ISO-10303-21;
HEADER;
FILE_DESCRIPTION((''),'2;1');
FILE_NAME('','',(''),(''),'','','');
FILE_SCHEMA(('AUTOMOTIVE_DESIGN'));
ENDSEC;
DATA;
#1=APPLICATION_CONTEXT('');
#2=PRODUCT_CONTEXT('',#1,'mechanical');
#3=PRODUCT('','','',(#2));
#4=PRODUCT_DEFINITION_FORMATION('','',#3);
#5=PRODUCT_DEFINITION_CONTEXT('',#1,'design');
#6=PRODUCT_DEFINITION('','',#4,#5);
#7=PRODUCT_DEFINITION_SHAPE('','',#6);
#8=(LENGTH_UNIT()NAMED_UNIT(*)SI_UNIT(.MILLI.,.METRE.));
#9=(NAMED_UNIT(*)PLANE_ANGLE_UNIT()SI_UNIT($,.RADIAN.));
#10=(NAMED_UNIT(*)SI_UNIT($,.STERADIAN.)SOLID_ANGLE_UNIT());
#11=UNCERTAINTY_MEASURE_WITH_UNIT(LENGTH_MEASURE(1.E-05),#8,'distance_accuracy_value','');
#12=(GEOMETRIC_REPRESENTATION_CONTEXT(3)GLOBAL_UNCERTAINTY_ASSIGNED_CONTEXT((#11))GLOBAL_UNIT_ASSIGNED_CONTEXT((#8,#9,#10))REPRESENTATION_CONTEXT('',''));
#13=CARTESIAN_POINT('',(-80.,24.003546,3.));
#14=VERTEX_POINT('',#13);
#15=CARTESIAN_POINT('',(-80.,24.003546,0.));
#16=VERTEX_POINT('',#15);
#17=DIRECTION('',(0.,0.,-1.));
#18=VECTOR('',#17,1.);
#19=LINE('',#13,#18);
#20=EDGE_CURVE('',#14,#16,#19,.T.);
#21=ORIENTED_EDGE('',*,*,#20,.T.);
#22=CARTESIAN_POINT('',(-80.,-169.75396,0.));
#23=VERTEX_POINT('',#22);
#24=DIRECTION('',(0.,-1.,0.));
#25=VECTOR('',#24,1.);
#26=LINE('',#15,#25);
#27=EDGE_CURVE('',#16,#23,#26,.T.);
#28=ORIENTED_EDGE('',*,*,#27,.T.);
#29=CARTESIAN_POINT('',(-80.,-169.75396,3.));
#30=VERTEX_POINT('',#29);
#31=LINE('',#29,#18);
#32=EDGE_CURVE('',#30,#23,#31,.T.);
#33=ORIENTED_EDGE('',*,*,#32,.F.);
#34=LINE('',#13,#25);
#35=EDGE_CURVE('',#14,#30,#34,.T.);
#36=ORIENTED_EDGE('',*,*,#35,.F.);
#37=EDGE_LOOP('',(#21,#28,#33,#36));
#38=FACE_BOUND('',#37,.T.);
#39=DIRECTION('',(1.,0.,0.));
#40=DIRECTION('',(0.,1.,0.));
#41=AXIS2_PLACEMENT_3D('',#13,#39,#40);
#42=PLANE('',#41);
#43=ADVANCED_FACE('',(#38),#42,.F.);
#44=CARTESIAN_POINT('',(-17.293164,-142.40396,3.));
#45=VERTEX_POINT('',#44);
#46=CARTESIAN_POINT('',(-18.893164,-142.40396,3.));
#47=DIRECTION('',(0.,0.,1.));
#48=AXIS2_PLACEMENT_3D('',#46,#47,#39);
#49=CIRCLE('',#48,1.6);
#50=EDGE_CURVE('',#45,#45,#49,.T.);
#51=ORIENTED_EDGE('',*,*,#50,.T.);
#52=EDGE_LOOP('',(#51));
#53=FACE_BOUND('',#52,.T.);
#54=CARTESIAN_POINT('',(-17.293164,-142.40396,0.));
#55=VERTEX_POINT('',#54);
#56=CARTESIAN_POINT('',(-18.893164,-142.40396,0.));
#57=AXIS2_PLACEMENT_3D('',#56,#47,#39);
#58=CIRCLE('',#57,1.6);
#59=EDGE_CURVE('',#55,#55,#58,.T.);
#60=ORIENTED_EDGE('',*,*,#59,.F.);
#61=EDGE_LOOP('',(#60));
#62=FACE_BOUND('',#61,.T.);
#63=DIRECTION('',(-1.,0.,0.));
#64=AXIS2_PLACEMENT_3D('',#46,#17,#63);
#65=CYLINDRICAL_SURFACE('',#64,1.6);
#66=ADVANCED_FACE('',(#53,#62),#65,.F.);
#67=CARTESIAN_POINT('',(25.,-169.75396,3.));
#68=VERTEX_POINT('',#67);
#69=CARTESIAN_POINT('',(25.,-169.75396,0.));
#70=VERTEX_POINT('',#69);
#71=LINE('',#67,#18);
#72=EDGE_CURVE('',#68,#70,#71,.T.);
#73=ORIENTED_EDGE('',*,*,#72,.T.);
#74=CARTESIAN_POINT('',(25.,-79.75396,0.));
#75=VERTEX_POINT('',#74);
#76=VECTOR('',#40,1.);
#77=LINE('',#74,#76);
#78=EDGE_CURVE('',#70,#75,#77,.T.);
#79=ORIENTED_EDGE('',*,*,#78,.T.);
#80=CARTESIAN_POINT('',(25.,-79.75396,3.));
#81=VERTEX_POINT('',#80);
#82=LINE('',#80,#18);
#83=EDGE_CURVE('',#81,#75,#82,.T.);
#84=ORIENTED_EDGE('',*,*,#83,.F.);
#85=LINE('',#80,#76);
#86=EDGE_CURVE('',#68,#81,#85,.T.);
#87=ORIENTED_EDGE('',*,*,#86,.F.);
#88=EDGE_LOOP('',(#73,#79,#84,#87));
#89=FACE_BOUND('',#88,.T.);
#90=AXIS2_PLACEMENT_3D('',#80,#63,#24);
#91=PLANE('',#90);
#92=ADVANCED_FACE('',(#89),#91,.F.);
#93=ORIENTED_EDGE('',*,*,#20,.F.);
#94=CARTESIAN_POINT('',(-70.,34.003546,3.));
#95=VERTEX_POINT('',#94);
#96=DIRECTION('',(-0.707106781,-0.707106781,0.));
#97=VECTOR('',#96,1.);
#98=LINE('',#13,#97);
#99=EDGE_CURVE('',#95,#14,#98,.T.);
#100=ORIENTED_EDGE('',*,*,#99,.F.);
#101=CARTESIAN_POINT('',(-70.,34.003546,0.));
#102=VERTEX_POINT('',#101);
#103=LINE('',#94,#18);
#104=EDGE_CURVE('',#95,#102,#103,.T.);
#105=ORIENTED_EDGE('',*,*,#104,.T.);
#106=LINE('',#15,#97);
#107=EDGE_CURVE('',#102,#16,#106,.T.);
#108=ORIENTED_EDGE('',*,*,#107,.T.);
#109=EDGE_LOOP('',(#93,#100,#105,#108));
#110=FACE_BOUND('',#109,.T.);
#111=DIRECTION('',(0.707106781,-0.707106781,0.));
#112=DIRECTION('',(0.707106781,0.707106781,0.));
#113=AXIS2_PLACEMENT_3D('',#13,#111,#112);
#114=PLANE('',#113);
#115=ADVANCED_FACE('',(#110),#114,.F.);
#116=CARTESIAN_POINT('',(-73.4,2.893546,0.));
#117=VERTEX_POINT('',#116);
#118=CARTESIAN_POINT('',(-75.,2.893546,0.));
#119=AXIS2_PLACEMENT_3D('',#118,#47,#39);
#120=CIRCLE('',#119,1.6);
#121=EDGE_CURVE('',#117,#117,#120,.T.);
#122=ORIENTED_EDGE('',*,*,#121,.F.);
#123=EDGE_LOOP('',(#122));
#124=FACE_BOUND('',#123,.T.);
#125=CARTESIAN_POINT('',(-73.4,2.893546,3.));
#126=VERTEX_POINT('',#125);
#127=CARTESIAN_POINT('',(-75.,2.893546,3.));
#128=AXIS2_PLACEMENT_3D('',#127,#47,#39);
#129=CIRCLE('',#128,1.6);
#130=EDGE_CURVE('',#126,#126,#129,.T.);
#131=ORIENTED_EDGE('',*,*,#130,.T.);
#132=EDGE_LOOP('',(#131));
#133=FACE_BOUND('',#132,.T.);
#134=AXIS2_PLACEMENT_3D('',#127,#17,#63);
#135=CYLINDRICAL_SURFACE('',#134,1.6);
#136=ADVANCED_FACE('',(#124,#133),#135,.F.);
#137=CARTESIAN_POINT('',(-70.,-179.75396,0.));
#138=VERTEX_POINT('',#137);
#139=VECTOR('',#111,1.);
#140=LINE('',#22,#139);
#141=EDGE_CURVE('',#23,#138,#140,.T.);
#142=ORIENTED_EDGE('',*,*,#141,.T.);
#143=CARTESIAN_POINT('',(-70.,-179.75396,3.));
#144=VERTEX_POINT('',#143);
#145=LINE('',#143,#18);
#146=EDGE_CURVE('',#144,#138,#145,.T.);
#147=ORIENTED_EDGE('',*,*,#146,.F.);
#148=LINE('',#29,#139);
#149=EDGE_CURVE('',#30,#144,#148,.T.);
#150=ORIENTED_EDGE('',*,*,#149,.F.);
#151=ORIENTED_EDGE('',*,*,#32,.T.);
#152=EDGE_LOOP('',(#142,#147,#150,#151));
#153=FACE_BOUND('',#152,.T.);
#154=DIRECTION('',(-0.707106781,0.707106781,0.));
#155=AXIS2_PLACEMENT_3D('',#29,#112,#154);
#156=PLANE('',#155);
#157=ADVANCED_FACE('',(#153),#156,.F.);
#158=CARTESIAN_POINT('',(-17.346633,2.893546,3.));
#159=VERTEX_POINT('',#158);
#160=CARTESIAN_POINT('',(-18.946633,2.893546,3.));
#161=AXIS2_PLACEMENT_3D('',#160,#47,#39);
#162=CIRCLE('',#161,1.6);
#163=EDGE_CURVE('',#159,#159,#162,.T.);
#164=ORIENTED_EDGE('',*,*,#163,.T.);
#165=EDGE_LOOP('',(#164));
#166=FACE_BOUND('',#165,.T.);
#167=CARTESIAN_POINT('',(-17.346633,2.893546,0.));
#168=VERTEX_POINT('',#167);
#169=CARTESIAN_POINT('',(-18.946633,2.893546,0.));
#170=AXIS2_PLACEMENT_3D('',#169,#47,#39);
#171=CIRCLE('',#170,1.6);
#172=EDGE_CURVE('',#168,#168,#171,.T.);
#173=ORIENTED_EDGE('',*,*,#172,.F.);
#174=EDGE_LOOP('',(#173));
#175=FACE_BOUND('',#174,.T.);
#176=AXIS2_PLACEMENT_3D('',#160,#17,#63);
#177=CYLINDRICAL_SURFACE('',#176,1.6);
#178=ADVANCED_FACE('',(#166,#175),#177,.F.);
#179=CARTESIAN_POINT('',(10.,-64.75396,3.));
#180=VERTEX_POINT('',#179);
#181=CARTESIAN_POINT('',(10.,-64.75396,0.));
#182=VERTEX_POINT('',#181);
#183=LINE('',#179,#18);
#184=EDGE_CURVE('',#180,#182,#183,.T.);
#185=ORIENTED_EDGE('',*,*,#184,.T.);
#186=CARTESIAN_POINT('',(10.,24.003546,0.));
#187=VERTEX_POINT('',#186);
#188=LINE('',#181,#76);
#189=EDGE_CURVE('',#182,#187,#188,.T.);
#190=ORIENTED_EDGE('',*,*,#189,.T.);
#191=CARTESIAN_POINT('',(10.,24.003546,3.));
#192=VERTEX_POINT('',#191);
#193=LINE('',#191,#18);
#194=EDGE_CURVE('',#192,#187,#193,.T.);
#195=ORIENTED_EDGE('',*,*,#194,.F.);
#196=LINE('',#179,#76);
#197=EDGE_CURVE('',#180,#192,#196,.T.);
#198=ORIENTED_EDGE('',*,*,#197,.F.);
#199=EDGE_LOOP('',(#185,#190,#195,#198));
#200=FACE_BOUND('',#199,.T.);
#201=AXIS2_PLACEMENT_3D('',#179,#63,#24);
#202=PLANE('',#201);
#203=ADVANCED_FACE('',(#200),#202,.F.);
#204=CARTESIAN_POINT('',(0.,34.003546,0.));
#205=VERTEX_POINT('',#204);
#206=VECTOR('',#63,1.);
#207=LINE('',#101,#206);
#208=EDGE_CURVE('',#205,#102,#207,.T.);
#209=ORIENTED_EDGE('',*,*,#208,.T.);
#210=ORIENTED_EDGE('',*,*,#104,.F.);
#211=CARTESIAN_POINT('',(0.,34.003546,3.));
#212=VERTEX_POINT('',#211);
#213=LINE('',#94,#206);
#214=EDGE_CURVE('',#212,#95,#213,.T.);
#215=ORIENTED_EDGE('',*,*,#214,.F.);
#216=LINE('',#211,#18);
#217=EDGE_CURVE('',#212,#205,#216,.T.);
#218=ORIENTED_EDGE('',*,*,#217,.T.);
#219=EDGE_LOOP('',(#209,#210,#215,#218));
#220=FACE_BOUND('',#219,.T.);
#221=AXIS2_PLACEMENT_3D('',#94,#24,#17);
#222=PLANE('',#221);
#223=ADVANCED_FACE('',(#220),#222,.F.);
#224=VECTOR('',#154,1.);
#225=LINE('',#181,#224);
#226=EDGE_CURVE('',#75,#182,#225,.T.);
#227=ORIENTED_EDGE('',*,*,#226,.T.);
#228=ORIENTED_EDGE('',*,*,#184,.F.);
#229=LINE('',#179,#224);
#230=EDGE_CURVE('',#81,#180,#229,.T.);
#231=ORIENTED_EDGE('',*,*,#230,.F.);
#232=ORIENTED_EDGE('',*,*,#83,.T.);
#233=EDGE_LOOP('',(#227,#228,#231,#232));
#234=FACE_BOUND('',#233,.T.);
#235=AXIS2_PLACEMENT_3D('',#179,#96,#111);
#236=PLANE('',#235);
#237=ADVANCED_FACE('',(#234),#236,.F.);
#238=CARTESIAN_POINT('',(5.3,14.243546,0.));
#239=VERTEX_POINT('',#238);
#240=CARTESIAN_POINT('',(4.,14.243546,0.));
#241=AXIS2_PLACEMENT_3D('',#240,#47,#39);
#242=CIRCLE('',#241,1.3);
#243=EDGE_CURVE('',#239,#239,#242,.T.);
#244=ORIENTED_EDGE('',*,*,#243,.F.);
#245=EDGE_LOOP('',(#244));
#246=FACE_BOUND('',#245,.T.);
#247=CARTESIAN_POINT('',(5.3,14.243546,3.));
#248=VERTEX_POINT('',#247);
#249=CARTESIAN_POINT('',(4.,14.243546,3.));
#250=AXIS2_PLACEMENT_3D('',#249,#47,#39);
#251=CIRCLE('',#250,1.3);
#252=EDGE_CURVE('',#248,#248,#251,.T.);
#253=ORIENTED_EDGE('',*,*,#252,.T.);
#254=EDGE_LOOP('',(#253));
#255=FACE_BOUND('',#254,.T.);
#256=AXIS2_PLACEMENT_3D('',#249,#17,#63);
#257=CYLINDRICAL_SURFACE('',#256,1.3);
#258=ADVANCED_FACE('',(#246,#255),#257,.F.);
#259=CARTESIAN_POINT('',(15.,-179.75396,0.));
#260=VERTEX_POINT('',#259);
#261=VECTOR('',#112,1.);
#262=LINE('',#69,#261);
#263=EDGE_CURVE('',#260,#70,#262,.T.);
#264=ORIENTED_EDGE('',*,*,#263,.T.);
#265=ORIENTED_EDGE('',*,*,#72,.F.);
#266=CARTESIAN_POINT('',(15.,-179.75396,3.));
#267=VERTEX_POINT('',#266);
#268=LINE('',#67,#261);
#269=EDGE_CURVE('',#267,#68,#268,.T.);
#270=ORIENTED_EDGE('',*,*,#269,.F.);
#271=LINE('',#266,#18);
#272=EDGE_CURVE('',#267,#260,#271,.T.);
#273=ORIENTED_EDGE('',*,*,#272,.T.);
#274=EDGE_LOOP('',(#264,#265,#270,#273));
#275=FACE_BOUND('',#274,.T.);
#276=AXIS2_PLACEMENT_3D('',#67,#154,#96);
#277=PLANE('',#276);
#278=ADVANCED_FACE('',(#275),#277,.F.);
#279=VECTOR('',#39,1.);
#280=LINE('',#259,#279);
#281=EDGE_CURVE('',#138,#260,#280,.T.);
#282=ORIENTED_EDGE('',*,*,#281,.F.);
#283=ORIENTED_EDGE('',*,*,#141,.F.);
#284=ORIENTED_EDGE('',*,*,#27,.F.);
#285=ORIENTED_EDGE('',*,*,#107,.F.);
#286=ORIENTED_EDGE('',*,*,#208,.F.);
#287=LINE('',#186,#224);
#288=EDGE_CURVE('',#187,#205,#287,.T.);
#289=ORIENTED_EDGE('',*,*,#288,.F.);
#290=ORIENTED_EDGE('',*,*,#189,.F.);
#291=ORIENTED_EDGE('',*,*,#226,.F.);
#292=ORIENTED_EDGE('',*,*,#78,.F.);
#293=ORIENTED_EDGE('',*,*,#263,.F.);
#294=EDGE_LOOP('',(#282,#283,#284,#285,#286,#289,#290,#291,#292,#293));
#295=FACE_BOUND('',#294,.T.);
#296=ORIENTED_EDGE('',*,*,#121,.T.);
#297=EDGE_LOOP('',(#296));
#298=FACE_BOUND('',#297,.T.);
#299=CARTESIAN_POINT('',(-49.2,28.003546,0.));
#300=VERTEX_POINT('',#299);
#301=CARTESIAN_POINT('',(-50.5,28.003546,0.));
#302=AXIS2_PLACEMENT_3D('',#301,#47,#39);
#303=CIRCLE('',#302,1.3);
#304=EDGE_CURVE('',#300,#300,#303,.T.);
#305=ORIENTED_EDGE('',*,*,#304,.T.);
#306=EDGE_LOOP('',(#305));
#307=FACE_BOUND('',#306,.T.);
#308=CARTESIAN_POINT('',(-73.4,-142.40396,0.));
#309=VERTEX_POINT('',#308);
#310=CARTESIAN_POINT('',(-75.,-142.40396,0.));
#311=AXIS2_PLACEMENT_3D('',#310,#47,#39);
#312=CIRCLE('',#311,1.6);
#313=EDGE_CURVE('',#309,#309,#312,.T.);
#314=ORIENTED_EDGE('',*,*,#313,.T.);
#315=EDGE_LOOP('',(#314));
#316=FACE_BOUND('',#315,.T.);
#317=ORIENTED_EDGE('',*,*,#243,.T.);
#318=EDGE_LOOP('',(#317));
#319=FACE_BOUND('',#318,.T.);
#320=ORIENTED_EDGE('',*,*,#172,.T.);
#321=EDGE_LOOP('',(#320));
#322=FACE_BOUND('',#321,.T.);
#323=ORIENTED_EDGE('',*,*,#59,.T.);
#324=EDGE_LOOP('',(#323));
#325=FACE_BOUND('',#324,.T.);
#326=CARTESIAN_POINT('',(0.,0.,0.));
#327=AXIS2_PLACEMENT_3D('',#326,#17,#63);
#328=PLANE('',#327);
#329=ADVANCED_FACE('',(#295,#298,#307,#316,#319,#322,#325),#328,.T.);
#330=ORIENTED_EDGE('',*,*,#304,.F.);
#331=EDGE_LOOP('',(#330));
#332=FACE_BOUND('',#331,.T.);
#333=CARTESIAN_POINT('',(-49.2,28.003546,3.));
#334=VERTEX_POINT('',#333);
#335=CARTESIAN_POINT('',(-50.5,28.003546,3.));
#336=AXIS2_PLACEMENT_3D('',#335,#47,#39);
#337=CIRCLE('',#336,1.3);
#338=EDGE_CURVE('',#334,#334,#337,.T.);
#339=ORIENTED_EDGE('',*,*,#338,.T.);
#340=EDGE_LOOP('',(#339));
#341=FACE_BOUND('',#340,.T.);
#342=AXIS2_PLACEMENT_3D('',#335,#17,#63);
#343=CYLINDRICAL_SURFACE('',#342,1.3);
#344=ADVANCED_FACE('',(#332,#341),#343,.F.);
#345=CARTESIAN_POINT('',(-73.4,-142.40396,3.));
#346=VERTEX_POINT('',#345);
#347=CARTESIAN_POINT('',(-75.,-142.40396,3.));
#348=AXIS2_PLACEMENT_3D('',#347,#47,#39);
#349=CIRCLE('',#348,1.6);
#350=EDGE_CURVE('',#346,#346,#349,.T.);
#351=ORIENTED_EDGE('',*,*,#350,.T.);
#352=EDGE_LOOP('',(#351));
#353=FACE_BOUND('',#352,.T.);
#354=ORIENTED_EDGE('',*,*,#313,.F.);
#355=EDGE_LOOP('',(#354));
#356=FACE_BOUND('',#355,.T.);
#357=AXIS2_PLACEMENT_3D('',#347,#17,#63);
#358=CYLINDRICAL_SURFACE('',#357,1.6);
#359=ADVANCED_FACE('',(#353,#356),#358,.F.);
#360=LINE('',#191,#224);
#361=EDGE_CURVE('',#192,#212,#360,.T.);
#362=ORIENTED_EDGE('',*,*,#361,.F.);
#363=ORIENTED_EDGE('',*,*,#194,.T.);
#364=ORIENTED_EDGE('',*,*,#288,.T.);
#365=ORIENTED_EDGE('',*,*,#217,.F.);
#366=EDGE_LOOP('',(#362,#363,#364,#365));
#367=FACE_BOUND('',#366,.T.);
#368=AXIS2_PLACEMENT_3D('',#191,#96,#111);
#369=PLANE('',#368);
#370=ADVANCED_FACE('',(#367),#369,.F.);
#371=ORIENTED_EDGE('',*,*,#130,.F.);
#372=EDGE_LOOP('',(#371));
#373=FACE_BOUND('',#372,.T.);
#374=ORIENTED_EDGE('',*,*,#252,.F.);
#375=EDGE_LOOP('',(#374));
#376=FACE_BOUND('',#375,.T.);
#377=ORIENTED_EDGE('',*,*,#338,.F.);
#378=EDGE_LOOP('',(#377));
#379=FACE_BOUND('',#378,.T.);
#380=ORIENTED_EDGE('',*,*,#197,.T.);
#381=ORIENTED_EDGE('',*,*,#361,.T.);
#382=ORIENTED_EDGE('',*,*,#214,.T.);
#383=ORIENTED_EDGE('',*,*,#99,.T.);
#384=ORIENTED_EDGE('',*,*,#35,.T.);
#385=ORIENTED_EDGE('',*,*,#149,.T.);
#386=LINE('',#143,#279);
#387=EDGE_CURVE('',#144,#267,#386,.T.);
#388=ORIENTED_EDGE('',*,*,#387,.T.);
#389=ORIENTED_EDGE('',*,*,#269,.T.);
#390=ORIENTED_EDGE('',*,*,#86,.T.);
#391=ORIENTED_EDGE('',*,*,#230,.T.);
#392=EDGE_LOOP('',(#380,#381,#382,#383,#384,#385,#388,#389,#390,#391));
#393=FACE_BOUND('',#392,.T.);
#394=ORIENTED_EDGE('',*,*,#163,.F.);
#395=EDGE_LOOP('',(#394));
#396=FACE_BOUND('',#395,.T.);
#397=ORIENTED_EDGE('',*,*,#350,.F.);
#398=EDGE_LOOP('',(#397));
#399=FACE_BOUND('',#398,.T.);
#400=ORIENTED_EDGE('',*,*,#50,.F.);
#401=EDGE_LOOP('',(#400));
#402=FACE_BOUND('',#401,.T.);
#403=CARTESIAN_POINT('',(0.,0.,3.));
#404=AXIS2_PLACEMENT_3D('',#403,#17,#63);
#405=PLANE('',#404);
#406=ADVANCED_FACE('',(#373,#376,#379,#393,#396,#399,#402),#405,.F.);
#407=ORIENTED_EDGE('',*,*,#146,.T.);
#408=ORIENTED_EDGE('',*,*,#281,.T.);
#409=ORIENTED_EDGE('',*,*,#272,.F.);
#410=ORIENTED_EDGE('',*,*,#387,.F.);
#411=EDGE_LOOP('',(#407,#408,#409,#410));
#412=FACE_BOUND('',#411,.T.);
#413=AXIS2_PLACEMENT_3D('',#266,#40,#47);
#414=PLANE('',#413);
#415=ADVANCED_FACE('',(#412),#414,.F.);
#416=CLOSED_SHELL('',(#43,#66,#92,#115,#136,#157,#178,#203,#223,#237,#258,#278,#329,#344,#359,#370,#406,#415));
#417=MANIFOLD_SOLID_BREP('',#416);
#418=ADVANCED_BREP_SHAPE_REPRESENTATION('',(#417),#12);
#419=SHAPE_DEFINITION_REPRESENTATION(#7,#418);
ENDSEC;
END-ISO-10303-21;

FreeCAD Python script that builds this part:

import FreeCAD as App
import Part
import Sketcher

V = App.Vector
Q = App.Units.Quantity

doc = App.newDocument("Part")
body = doc.addObject("PartDesign::Body", "Body")

sketch1 = body.newObject("Sketcher::SketchObject", "Sketch")
sketch1.AttachmentSupport = (doc.getObject("XY_Plane"), [""])
sketch1.MapMode = "FlatFace"
sketch1.addGeometry([
    Part.LineSegment(V(0, 34.003546, 0), V(-70, 34.003546, 0)),
    Part.LineSegment(V(-70, 34.003546, 0), V(-80, 24.003546, 0)),
    Part.LineSegment(V(-80, 24.003546, 0), V(-80, -169.75396, 0)),
    Part.LineSegment(V(-80, -169.75396, 0), V(-70, -179.75396, 0)),
    Part.LineSegment(V(-70, -179.75396, 0), V(15, -179.75396, 0)),
    Part.LineSegment(V(15, -179.75396, 0), V(25, -169.75396, 0)),
    Part.LineSegment(V(25, -169.75396, 0), V(25, -79.75396, 0)),
    Part.LineSegment(V(25, -79.75396, 0), V(10, -64.75396, 0)),
    Part.LineSegment(V(10, -64.75396, 0), V(10, 24.003546, 0)),
    Part.LineSegment(V(10, 24.003546, 0), V(0, 34.003546, 0)),
    Part.Circle(V(-18.893164, -142.40396, 0), V(0, 0, 1), 1.6),
    Part.Circle(V(-75, -142.40396, 0), V(0, 0, 1), 1.6),
    Part.Circle(V(4, 14.243546, 0), V(0, 0, 1), 1.3),
    Part.Circle(V(-18.946633, 2.893546, 0), V(0, 0, 1), 1.6),
    Part.Circle(V(-50.5, 28.003546, 0), V(0, 0, 1), 1.3),
    Part.Circle(V(-75, 2.893546, 0), V(0, 0, 1), 1.6),
], False)
sketch1.addConstraint([
    Sketcher.Constraint("Coincident", 0, 2, 1, 1),
    Sketcher.Constraint("Coincident", 1, 2, 2, 1),
    Sketcher.Constraint("Coincident", 2, 2, 3, 1),
    Sketcher.Constraint("Coincident", 3, 2, 4, 1),
    Sketcher.Constraint("Coincident", 4, 2, 5, 1),
    Sketcher.Constraint("Coincident", 5, 2, 6, 1),
    Sketcher.Constraint("Coincident", 6, 2, 7, 1),
    Sketcher.Constraint("Coincident", 7, 2, 8, 1),
    Sketcher.Constraint("Coincident", 8, 2, 9, 1),
    Sketcher.Constraint("Coincident", 9, 2, 0, 1),
    Sketcher.Constraint("Horizontal", 0),
    Sketcher.Constraint("Vertical", 2),
    Sketcher.Constraint("Horizontal", 4),
    Sketcher.Constraint("Vertical", 6),
    Sketcher.Constraint("Vertical", 8),
    Sketcher.Constraint("Equal", 10, 11),
    Sketcher.Constraint("Equal", 11, 13),
    Sketcher.Constraint("Equal", 12, 14),
    Sketcher.Constraint("Equal", 13, 15),
    Sketcher.Constraint("PointOnObject", 9, 2, -2),
    Sketcher.Constraint("Perpendicular", 1, 3),
    Sketcher.Constraint("Perpendicular", 3, 5),
    Sketcher.Constraint("Perpendicular", 5, 7),
    Sketcher.Constraint("Parallel", 7, 9),
    Sketcher.Constraint("Horizontal", 10, 3, 11, 3),
    Sketcher.Constraint("Horizontal", 13, 3, 15, 3),
    Sketcher.Constraint("Horizontal", 2, 2, 5, 2),
    Sketcher.Constraint("Horizontal", 1, 2, 8, 2),
    Sketcher.Constraint("Vertical", 11, 3, 15, 3),
    Sketcher.Constraint("Vertical", 0, 2, 3, 2),
    Sketcher.Constraint("Equal", 1, 3),
    Sketcher.Constraint("Diameter", 10, Q("3.2 mm")),
    Sketcher.Constraint("Diameter", 12, Q("2.6 mm")),
    Sketcher.Constraint("DistanceX", 0, 2, 0, 1, Q("70 mm")),
    Sketcher.Constraint("DistanceX", 4, 1, 4, 2, Q("85 mm")),
    Sketcher.Constraint("DistanceY", 6, 1, 6, 2, Q("90 mm")),
    Sketcher.Constraint("DistanceX", 11, 3, -1, 1, Q("75 mm")),
    Sketcher.Constraint("DistanceX", -1, 1, 12, 3, Q("4 mm")),
    Sketcher.Constraint("DistanceX", 1, 2, -1, 1, Q("80 mm")),
    Sketcher.Constraint("DistanceY", 14, 3, 0, 2, Q("6 mm")),
    Sketcher.Constraint("DistanceX", 14, 3, -1, 1, Q("50.5 mm")),
    Sketcher.Constraint("DistanceY", 13, 3, 12, 3, Q("11.35 mm")),
    Sketcher.Constraint("DistanceY", 13, 3, 14, 3, Q("25.11 mm")),
    Sketcher.Constraint("DistanceY", 2, 2, 11, 3, Q("27.35 mm")),
    Sketcher.Constraint("DistanceY", 2, 2, 2, 1, Q("193.757506 mm")),
    Sketcher.Constraint("DistanceY", 10, 3, -1, 1, Q("142.40396 mm")),
    Sketcher.Constraint("DistanceX", 13, 3, 10, 3, Q("0.053468 mm")),
    Sketcher.Constraint("DistanceX", 10, 3, -1, 1, Q("18.893164 mm")),
])
pad1 = body.newObject("PartDesign::Pad", "Pad")
pad1.Profile = sketch1
pad1.Length = 3

doc.recompute()
